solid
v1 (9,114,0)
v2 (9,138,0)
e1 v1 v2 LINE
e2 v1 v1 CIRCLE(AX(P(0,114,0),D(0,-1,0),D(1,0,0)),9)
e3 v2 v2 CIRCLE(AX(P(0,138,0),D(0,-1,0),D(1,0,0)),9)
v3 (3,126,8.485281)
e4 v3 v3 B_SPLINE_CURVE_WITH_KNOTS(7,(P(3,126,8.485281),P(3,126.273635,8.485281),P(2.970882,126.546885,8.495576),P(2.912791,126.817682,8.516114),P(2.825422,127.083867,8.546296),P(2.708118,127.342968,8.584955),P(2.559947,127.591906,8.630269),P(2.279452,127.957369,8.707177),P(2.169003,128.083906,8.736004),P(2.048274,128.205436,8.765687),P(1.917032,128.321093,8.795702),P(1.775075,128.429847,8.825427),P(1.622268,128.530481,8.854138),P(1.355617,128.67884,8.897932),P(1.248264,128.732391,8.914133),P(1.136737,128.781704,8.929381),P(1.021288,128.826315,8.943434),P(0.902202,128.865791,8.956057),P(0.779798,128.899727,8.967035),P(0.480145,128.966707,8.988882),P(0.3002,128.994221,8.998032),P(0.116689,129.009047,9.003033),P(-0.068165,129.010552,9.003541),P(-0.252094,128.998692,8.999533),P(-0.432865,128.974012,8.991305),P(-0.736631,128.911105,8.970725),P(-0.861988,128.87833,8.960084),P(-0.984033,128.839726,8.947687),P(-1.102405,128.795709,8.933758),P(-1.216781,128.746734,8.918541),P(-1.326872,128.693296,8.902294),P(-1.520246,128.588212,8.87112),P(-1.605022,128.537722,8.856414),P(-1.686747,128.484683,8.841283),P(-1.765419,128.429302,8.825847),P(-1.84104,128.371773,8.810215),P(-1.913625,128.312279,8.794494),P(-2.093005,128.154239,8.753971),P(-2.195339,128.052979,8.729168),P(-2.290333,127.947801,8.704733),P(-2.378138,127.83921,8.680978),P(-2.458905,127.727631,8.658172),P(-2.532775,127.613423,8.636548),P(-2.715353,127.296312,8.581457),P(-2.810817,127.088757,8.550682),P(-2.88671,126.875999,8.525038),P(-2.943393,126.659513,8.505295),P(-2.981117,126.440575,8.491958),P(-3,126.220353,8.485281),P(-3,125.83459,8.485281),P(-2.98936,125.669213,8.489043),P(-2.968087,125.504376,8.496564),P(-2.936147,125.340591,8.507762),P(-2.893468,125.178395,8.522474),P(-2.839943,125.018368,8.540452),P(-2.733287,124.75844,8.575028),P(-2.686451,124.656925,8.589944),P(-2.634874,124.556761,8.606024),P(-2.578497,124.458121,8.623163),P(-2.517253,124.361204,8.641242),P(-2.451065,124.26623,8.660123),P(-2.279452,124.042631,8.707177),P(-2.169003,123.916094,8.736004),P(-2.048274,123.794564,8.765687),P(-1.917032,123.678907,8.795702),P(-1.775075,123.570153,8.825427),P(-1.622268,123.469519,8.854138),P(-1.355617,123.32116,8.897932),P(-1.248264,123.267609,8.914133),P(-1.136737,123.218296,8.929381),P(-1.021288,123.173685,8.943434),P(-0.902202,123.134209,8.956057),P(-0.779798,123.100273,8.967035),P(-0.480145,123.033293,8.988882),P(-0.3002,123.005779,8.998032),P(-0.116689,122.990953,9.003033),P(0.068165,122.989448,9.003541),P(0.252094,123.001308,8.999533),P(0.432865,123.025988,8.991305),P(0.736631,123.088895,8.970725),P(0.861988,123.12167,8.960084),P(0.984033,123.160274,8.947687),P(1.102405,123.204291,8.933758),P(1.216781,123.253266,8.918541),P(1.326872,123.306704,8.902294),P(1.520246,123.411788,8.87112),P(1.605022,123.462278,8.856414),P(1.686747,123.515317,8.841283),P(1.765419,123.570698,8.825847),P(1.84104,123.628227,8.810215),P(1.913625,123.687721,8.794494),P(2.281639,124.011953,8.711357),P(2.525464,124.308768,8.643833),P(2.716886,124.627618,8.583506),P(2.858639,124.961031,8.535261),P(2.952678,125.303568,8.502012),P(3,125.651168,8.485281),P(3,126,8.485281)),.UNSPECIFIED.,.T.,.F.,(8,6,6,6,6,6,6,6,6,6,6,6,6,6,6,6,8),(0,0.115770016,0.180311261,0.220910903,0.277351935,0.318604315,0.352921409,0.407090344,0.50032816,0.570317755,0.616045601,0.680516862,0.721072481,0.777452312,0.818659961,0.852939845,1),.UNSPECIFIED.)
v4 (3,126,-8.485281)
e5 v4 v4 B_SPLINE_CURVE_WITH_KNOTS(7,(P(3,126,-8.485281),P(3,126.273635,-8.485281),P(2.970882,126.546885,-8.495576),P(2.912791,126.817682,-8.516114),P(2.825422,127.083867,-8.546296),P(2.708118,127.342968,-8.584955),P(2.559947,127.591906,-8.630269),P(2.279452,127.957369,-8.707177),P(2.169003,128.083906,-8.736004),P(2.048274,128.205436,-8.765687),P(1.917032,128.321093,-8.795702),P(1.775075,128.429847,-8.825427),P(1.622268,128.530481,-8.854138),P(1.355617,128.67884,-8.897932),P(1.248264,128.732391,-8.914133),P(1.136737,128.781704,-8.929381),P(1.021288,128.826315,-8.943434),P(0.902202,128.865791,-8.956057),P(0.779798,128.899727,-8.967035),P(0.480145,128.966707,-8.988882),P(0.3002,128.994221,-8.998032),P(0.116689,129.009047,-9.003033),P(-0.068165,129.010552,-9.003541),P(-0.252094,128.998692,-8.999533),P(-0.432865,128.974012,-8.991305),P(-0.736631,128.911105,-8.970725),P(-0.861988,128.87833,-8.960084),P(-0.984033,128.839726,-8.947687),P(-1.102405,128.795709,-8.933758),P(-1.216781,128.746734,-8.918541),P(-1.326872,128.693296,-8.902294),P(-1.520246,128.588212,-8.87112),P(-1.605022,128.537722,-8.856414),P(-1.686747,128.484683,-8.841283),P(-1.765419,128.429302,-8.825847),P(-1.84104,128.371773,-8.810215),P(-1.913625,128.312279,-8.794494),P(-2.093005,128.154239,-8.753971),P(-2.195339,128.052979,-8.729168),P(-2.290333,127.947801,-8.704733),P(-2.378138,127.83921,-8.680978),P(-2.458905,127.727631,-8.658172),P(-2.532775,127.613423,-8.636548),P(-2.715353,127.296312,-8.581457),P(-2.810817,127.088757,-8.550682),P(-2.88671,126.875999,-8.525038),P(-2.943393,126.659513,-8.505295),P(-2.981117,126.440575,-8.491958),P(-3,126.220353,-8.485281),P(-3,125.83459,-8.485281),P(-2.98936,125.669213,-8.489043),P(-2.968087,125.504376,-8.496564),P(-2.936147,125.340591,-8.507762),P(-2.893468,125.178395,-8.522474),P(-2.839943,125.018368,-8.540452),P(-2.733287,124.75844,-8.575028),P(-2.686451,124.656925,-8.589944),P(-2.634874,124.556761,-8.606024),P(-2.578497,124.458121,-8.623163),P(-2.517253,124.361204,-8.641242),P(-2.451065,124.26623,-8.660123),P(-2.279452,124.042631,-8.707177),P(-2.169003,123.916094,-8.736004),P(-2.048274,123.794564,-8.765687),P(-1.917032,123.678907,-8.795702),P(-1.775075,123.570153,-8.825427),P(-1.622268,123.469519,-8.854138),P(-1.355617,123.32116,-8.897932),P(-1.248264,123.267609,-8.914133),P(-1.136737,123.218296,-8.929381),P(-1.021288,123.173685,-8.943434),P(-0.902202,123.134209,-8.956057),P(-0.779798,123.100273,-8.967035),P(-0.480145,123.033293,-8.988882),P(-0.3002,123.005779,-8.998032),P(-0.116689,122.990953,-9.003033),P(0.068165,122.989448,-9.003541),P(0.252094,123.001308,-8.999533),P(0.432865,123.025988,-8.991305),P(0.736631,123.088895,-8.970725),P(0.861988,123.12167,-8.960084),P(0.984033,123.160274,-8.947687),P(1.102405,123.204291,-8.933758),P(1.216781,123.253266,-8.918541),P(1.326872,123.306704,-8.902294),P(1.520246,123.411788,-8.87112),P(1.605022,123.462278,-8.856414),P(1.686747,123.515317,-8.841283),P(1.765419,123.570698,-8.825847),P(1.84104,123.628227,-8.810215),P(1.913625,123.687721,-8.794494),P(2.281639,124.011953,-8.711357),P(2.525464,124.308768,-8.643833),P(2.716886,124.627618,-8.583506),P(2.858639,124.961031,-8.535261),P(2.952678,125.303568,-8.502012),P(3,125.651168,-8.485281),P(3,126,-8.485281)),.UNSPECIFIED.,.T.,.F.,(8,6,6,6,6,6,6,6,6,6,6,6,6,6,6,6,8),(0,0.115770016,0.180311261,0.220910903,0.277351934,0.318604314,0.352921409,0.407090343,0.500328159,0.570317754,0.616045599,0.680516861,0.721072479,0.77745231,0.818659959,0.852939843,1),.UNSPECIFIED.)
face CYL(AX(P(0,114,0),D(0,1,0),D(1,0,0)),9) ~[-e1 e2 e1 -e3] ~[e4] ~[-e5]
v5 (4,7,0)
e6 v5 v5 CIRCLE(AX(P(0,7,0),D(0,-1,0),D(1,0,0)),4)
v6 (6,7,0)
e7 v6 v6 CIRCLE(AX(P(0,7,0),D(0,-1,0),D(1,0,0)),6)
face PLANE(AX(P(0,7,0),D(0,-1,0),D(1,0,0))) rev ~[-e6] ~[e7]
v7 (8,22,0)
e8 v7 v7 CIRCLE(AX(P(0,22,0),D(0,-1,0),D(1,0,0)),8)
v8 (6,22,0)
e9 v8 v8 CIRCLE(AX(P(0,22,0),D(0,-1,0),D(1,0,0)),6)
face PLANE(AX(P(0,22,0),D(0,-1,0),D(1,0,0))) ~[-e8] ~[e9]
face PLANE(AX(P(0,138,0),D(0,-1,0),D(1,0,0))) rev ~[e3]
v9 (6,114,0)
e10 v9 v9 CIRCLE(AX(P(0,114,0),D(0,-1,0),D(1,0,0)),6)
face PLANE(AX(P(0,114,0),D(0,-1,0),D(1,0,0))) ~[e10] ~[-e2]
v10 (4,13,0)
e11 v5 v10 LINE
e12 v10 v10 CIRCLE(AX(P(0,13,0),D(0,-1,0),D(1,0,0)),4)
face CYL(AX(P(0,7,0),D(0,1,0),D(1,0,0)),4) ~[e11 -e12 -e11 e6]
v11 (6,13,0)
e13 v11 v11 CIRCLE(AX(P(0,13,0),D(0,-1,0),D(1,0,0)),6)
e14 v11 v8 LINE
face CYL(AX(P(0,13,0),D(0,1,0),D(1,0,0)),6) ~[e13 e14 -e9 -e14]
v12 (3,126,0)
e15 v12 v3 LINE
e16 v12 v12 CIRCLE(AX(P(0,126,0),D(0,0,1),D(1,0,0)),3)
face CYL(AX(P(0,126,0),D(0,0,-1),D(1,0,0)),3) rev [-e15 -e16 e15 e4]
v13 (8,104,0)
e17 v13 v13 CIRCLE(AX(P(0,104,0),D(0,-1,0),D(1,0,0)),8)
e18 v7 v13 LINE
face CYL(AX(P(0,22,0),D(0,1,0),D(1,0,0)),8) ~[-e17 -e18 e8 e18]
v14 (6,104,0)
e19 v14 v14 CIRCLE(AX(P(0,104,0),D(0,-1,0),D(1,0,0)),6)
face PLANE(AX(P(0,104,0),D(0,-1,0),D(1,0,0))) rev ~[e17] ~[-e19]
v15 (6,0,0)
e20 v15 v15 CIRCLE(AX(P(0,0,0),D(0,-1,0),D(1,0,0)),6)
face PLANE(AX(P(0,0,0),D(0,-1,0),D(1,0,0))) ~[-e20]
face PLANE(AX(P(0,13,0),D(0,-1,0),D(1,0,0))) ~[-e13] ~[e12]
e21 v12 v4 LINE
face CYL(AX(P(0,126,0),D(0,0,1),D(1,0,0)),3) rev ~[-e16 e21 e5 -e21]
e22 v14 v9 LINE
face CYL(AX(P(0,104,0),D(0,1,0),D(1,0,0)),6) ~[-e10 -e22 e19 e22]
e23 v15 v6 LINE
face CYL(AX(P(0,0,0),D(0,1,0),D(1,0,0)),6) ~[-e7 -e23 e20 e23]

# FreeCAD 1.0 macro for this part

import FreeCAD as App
import Part
import Sketcher


def add_polygon(sketch, points):
    """Adds a closed chain of lines whose ends are joined by coincident constraints."""
    first, n = sketch.GeometryCount, len(points)
    for a, b in zip(points, points[1:] + points[:1]):
        sketch.addGeometry(Part.LineSegment(App.Vector(*a, 0), App.Vector(*b, 0)), False)
    for i in range(n):
        sketch.addConstraint(Sketcher.Constraint("Coincident", first + i, 2, first + (i + 1) % n, 1))

doc = App.newDocument("Part")
body = doc.addObject("PartDesign::Body", "Body")

# Sketch on XY plane
sketch1 = body.newObject("Sketcher::SketchObject", "Sketch")
sketch1.AttachmentSupport = (doc.getObject("XY_Plane"), [""])
sketch1.MapMode = "FlatFace"
add_polygon(sketch1, [(0, 0), (6, 0), (6, 7), (4, 7), (4, 13), (6, 13), (6, 22), (8, 22), (8, 104), (6, 104), (6, 114), (9, 114), (9, 138), (0, 138)])  # lines 0-13
sketch1.addConstraint(Sketcher.Constraint("Horizontal", 0))
sketch1.addConstraint(Sketcher.Constraint("Vertical", 1))
sketch1.addConstraint(Sketcher.Constraint("Horizontal", 2))
sketch1.addConstraint(Sketcher.Constraint("Vertical", 3))
sketch1.addConstraint(Sketcher.Constraint("Horizontal", 4))
sketch1.addConstraint(Sketcher.Constraint("Vertical", 5))
sketch1.addConstraint(Sketcher.Constraint("Horizontal", 6))
sketch1.addConstraint(Sketcher.Constraint("Vertical", 7))
sketch1.addConstraint(Sketcher.Constraint("Horizontal", 8))
sketch1.addConstraint(Sketcher.Constraint("Vertical", 9))
sketch1.addConstraint(Sketcher.Constraint("Horizontal", 10))
sketch1.addConstraint(Sketcher.Constraint("Vertical", 11))
sketch1.addConstraint(Sketcher.Constraint("Horizontal", 12))
sketch1.addConstraint(Sketcher.Constraint("Vertical", 13))
sketch1.addConstraint(Sketcher.Constraint("Coincident", 13, 2, -1, 1))
sketch1.addConstraint(Sketcher.Constraint("Vertical", 1, 2, 4, 2))
sketch1.addConstraint(Sketcher.Constraint("Vertical", 5, 2, 8, 2))
sketch1.addConstraint(Sketcher.Constraint("Equal", 4, 6))
sketch1.addConstraint(Sketcher.Constraint("Equal", 0, 3))
sketch1.addConstraint(Sketcher.Constraint("Equal", 12, 5))
sketch1.addConstraint(Sketcher.Constraint("DistanceX", 0, 1, 0, 2, 6.0))
sketch1.addConstraint(Sketcher.Constraint("DistanceX", 2, 2, 2, 1, 2.0))
sketch1.addConstraint(Sketcher.Constraint("DistanceX", 10, 1, 10, 2, 3.0))
sketch1.addConstraint(Sketcher.Constraint("DistanceY", 1, 1, 1, 2, 7.0))
sketch1.addConstraint(Sketcher.Constraint("DistanceY", 7, 1, 7, 2, 82.0))
sketch1.addConstraint(Sketcher.Constraint("DistanceY", 9, 1, 9, 2, 10.0))
sketch1.addConstraint(Sketcher.Constraint("DistanceY", 11, 1, 11, 2, 24.0))
revolution = body.newObject("PartDesign::Revolution", "Revolution")
revolution.Profile = sketch1
revolution.ReferenceAxis = (sketch1, ["V_Axis"])
revolution.Angle = 360

# Sketch on XY plane
sketch2 = body.newObject("Sketcher::SketchObject", "Sketch001")
sketch2.AttachmentSupport = (doc.getObject("XY_Plane"), [""])
sketch2.MapMode = "FlatFace"
sketch2.addGeometry(Part.Circle(App.Vector(0, 126, 0), App.Vector(0, 0, 1), 3), False)
sketch2.addConstraint(Sketcher.Constraint("PointOnObject", 0, 3, -2))
sketch2.addConstraint(Sketcher.Constraint("Diameter", 0, 6.0))
sketch2.addConstraint(Sketcher.Constraint("DistanceY", -1, 1, 0, 3, 126.0))
pocket1 = body.newObject("PartDesign::Pocket", "Pocket")
pocket1.Profile = sketch2
pocket1.Type = "ThroughAll"
pocket1.Midplane = True

doc.recompute()
